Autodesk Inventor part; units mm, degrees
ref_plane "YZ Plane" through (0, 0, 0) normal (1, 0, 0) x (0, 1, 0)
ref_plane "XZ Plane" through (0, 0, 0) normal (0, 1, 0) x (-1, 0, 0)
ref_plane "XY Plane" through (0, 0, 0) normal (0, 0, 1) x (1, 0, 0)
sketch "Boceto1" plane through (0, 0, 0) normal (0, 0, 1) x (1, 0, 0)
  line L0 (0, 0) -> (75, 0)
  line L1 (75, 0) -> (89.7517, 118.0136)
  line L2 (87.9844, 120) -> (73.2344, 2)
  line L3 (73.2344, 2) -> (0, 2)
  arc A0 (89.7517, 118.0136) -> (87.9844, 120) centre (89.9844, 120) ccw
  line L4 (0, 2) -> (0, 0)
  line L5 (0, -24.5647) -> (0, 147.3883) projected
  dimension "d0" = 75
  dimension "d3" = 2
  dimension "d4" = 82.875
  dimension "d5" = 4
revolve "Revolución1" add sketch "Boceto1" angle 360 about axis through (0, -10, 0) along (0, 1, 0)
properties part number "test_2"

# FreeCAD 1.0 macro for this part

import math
import FreeCAD as App
import Part
import Sketcher
from FreeCAD import Vector

doc = App.newDocument("Part")
body = doc.addObject("PartDesign::Body", "Body")

# Sketch on XY plane
sketch1 = body.newObject("Sketcher::SketchObject", "Sketch")
sketch1.AttachmentSupport = (doc.getObject("XY_Plane"), [""])
sketch1.MapMode = "FlatFace"
sketch1.addGeometry([
    Part.LineSegment(Vector(0, 2, 0), Vector(0, 0, 0)),  # 0
    Part.LineSegment(Vector(0, 0, 0), Vector(75, 0, 0)),  # 1
    Part.LineSegment(Vector(75, 0, 0), Vector(89.8, 118, 0)),  # 2
    Part.ArcOfCircle(Part.Circle(Vector(90, 120, 0), Vector(0, 0, 1), 2), math.radians(-97), math.radians(180)),  # 3
    Part.LineSegment(Vector(88, 120, 0), Vector(73.2, 2, 0)),  # 4
    Part.LineSegment(Vector(73.2, 2, 0), Vector(0, 2, 0)),  # 5
], False)
sketch1.addConstraint([
    Sketcher.Constraint("Coincident", 0, 2, 1, 1),
    Sketcher.Constraint("Coincident", 1, 2, 2, 1),
    Sketcher.Constraint("Coincident", 2, 2, 3, 1),
    Sketcher.Constraint("Coincident", 3, 2, 4, 1),
    Sketcher.Constraint("Coincident", 4, 2, 5, 1),
    Sketcher.Constraint("Coincident", 5, 2, 0, 1),
    Sketcher.Constraint("Vertical", 0),
    Sketcher.Constraint("Horizontal", 1),
    Sketcher.Constraint("Horizontal", 5),
    Sketcher.Constraint("Coincident", 0, 2, -1, 1),
    Sketcher.Constraint("Parallel", 2, 4),
    Sketcher.Constraint("Radius", 3, 2.0),
    Sketcher.Constraint("DistanceX", 1, 1, 1, 2, 75.0),
    Sketcher.Constraint("DistanceY", 0, 2, 0, 1, 2.0),
    Sketcher.Constraint("DistanceY", -1, 1, 3, 3, 120.0),
    Sketcher.Constraint("DistanceY", -1, 1, 3, 2, 120.0),
    Sketcher.Constraint("DistanceX", 4, 2, 3, 2, 14.75),
    Sketcher.Constraint("Distance", 2, 118.932),
])
revolution = body.newObject("PartDesign::Revolution", "Revolution")
revolution.Profile = sketch1
revolution.ReferenceAxis = (sketch1, ["V_Axis"])
revolution.Angle = 360

doc.recompute()
